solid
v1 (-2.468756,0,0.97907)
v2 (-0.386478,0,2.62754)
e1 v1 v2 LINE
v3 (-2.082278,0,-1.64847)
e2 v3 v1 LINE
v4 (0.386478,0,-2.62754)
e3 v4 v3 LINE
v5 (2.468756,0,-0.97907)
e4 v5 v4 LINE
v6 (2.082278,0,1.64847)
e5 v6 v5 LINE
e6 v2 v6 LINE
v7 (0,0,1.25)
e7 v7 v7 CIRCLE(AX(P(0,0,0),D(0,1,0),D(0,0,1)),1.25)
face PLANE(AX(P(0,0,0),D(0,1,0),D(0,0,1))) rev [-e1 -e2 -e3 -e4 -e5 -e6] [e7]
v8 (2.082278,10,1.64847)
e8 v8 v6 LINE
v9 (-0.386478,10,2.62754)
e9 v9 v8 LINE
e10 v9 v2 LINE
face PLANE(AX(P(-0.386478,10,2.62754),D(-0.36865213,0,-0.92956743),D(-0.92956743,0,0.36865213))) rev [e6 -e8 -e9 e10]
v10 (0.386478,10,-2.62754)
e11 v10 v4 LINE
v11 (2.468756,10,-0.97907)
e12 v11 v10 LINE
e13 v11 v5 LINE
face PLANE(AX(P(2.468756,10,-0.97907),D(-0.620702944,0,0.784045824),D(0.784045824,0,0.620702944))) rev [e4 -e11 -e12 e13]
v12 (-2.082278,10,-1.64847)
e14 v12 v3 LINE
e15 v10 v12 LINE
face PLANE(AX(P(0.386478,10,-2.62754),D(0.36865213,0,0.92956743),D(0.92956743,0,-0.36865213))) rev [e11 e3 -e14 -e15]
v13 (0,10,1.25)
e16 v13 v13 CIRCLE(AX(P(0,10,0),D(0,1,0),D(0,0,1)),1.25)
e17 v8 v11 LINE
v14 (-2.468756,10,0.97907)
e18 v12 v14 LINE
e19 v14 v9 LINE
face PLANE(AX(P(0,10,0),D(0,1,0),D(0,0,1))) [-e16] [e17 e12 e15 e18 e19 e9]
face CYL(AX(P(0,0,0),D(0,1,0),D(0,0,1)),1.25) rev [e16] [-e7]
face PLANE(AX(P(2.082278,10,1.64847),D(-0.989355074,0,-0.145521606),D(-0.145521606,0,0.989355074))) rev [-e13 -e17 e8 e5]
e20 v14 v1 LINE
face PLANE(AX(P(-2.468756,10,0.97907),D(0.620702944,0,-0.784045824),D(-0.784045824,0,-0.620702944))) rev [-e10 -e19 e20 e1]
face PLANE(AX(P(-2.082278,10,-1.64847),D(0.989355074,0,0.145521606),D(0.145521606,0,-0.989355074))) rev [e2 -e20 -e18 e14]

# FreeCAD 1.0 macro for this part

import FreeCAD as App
import Part
import Sketcher
Q = App.Units.Quantity


def add_polygon(sketch, points):
    """Adds a closed chain of lines whose ends are joined by coincident constraints."""
    first, n = sketch.GeometryCount, len(points)
    for a, b in zip(points, points[1:] + points[:1]):
        sketch.addGeometry(Part.LineSegment(App.Vector(*a, 0), App.Vector(*b, 0)), False)
    for i in range(n):
        sketch.addConstraint(Sketcher.Constraint("Coincident", first + i, 2, first + (i + 1) % n, 1))

doc = App.newDocument("Part")
body = doc.addObject("PartDesign::Body", "Body")

sketch1 = body.newObject("Sketcher::SketchObject", "Sketch")
sketch1.AttachmentSupport = (doc.getObject("XZ_Plane"), [""])
sketch1.MapMode = "FlatFace"
add_polygon(sketch1, [(2.1, 1.6), (2.5, -1), (0.4, -2.6), (-2.1, -1.6), (-2.5, 1), (-0.4, 2.6)])
sketch1.addConstraint([
    Sketcher.Constraint("Symmetric", 0, 2, 3, 2, -1, 1),
    Sketcher.Constraint("Symmetric", 1, 2, 4, 2, -1, 1),
    Sketcher.Constraint("Symmetric", 2, 2, 5, 2, -1, 1),
    Sketcher.Constraint("Equal", 0, 1),
    Sketcher.Constraint("Equal", 1, 2),
    Sketcher.Constraint("DistanceY", 2, 2, 0, 2, Q("0.669399 mm")),
    Sketcher.Constraint("DistanceX", 2, 2, 4, 2, Q("1.6958 mm")),
    Sketcher.Constraint("Distance", 0, Q("2.655811 mm")),
    Sketcher.Constraint("DistanceY", 0, 2, -1, 1, Q("0.97907 mm")),
])
pad1 = body.newObject("PartDesign::Pad", "Pad")
pad1.Profile = sketch1
pad1.Length = 10
pad1.Reversed = True

sketch2 = body.newObject("Sketcher::SketchObject", "Sketch001")
sketch2.AttachmentSupport = (doc.getObject("XZ_Plane"), [""])
sketch2.MapMode = "FlatFace"
sketch2.AttachmentOffset = App.Placement(App.Vector(0, 0, -10), App.Rotation())
sketch2.addGeometry(Part.Circle(App.Vector(0, 0, 0), App.Vector(0, 0, 1), 1.2), False)
sketch2.addConstraint([
    Sketcher.Constraint("Coincident", 0, 3, -1, 1),
    Sketcher.Constraint("Diameter", 0, Q("2.5 mm")),
])
pocket1 = body.newObject("PartDesign::Pocket", "Pocket")
pocket1.Profile = sketch2
pocket1.Type = "ThroughAll"
pocket1.Reversed = True

doc.recompute()
